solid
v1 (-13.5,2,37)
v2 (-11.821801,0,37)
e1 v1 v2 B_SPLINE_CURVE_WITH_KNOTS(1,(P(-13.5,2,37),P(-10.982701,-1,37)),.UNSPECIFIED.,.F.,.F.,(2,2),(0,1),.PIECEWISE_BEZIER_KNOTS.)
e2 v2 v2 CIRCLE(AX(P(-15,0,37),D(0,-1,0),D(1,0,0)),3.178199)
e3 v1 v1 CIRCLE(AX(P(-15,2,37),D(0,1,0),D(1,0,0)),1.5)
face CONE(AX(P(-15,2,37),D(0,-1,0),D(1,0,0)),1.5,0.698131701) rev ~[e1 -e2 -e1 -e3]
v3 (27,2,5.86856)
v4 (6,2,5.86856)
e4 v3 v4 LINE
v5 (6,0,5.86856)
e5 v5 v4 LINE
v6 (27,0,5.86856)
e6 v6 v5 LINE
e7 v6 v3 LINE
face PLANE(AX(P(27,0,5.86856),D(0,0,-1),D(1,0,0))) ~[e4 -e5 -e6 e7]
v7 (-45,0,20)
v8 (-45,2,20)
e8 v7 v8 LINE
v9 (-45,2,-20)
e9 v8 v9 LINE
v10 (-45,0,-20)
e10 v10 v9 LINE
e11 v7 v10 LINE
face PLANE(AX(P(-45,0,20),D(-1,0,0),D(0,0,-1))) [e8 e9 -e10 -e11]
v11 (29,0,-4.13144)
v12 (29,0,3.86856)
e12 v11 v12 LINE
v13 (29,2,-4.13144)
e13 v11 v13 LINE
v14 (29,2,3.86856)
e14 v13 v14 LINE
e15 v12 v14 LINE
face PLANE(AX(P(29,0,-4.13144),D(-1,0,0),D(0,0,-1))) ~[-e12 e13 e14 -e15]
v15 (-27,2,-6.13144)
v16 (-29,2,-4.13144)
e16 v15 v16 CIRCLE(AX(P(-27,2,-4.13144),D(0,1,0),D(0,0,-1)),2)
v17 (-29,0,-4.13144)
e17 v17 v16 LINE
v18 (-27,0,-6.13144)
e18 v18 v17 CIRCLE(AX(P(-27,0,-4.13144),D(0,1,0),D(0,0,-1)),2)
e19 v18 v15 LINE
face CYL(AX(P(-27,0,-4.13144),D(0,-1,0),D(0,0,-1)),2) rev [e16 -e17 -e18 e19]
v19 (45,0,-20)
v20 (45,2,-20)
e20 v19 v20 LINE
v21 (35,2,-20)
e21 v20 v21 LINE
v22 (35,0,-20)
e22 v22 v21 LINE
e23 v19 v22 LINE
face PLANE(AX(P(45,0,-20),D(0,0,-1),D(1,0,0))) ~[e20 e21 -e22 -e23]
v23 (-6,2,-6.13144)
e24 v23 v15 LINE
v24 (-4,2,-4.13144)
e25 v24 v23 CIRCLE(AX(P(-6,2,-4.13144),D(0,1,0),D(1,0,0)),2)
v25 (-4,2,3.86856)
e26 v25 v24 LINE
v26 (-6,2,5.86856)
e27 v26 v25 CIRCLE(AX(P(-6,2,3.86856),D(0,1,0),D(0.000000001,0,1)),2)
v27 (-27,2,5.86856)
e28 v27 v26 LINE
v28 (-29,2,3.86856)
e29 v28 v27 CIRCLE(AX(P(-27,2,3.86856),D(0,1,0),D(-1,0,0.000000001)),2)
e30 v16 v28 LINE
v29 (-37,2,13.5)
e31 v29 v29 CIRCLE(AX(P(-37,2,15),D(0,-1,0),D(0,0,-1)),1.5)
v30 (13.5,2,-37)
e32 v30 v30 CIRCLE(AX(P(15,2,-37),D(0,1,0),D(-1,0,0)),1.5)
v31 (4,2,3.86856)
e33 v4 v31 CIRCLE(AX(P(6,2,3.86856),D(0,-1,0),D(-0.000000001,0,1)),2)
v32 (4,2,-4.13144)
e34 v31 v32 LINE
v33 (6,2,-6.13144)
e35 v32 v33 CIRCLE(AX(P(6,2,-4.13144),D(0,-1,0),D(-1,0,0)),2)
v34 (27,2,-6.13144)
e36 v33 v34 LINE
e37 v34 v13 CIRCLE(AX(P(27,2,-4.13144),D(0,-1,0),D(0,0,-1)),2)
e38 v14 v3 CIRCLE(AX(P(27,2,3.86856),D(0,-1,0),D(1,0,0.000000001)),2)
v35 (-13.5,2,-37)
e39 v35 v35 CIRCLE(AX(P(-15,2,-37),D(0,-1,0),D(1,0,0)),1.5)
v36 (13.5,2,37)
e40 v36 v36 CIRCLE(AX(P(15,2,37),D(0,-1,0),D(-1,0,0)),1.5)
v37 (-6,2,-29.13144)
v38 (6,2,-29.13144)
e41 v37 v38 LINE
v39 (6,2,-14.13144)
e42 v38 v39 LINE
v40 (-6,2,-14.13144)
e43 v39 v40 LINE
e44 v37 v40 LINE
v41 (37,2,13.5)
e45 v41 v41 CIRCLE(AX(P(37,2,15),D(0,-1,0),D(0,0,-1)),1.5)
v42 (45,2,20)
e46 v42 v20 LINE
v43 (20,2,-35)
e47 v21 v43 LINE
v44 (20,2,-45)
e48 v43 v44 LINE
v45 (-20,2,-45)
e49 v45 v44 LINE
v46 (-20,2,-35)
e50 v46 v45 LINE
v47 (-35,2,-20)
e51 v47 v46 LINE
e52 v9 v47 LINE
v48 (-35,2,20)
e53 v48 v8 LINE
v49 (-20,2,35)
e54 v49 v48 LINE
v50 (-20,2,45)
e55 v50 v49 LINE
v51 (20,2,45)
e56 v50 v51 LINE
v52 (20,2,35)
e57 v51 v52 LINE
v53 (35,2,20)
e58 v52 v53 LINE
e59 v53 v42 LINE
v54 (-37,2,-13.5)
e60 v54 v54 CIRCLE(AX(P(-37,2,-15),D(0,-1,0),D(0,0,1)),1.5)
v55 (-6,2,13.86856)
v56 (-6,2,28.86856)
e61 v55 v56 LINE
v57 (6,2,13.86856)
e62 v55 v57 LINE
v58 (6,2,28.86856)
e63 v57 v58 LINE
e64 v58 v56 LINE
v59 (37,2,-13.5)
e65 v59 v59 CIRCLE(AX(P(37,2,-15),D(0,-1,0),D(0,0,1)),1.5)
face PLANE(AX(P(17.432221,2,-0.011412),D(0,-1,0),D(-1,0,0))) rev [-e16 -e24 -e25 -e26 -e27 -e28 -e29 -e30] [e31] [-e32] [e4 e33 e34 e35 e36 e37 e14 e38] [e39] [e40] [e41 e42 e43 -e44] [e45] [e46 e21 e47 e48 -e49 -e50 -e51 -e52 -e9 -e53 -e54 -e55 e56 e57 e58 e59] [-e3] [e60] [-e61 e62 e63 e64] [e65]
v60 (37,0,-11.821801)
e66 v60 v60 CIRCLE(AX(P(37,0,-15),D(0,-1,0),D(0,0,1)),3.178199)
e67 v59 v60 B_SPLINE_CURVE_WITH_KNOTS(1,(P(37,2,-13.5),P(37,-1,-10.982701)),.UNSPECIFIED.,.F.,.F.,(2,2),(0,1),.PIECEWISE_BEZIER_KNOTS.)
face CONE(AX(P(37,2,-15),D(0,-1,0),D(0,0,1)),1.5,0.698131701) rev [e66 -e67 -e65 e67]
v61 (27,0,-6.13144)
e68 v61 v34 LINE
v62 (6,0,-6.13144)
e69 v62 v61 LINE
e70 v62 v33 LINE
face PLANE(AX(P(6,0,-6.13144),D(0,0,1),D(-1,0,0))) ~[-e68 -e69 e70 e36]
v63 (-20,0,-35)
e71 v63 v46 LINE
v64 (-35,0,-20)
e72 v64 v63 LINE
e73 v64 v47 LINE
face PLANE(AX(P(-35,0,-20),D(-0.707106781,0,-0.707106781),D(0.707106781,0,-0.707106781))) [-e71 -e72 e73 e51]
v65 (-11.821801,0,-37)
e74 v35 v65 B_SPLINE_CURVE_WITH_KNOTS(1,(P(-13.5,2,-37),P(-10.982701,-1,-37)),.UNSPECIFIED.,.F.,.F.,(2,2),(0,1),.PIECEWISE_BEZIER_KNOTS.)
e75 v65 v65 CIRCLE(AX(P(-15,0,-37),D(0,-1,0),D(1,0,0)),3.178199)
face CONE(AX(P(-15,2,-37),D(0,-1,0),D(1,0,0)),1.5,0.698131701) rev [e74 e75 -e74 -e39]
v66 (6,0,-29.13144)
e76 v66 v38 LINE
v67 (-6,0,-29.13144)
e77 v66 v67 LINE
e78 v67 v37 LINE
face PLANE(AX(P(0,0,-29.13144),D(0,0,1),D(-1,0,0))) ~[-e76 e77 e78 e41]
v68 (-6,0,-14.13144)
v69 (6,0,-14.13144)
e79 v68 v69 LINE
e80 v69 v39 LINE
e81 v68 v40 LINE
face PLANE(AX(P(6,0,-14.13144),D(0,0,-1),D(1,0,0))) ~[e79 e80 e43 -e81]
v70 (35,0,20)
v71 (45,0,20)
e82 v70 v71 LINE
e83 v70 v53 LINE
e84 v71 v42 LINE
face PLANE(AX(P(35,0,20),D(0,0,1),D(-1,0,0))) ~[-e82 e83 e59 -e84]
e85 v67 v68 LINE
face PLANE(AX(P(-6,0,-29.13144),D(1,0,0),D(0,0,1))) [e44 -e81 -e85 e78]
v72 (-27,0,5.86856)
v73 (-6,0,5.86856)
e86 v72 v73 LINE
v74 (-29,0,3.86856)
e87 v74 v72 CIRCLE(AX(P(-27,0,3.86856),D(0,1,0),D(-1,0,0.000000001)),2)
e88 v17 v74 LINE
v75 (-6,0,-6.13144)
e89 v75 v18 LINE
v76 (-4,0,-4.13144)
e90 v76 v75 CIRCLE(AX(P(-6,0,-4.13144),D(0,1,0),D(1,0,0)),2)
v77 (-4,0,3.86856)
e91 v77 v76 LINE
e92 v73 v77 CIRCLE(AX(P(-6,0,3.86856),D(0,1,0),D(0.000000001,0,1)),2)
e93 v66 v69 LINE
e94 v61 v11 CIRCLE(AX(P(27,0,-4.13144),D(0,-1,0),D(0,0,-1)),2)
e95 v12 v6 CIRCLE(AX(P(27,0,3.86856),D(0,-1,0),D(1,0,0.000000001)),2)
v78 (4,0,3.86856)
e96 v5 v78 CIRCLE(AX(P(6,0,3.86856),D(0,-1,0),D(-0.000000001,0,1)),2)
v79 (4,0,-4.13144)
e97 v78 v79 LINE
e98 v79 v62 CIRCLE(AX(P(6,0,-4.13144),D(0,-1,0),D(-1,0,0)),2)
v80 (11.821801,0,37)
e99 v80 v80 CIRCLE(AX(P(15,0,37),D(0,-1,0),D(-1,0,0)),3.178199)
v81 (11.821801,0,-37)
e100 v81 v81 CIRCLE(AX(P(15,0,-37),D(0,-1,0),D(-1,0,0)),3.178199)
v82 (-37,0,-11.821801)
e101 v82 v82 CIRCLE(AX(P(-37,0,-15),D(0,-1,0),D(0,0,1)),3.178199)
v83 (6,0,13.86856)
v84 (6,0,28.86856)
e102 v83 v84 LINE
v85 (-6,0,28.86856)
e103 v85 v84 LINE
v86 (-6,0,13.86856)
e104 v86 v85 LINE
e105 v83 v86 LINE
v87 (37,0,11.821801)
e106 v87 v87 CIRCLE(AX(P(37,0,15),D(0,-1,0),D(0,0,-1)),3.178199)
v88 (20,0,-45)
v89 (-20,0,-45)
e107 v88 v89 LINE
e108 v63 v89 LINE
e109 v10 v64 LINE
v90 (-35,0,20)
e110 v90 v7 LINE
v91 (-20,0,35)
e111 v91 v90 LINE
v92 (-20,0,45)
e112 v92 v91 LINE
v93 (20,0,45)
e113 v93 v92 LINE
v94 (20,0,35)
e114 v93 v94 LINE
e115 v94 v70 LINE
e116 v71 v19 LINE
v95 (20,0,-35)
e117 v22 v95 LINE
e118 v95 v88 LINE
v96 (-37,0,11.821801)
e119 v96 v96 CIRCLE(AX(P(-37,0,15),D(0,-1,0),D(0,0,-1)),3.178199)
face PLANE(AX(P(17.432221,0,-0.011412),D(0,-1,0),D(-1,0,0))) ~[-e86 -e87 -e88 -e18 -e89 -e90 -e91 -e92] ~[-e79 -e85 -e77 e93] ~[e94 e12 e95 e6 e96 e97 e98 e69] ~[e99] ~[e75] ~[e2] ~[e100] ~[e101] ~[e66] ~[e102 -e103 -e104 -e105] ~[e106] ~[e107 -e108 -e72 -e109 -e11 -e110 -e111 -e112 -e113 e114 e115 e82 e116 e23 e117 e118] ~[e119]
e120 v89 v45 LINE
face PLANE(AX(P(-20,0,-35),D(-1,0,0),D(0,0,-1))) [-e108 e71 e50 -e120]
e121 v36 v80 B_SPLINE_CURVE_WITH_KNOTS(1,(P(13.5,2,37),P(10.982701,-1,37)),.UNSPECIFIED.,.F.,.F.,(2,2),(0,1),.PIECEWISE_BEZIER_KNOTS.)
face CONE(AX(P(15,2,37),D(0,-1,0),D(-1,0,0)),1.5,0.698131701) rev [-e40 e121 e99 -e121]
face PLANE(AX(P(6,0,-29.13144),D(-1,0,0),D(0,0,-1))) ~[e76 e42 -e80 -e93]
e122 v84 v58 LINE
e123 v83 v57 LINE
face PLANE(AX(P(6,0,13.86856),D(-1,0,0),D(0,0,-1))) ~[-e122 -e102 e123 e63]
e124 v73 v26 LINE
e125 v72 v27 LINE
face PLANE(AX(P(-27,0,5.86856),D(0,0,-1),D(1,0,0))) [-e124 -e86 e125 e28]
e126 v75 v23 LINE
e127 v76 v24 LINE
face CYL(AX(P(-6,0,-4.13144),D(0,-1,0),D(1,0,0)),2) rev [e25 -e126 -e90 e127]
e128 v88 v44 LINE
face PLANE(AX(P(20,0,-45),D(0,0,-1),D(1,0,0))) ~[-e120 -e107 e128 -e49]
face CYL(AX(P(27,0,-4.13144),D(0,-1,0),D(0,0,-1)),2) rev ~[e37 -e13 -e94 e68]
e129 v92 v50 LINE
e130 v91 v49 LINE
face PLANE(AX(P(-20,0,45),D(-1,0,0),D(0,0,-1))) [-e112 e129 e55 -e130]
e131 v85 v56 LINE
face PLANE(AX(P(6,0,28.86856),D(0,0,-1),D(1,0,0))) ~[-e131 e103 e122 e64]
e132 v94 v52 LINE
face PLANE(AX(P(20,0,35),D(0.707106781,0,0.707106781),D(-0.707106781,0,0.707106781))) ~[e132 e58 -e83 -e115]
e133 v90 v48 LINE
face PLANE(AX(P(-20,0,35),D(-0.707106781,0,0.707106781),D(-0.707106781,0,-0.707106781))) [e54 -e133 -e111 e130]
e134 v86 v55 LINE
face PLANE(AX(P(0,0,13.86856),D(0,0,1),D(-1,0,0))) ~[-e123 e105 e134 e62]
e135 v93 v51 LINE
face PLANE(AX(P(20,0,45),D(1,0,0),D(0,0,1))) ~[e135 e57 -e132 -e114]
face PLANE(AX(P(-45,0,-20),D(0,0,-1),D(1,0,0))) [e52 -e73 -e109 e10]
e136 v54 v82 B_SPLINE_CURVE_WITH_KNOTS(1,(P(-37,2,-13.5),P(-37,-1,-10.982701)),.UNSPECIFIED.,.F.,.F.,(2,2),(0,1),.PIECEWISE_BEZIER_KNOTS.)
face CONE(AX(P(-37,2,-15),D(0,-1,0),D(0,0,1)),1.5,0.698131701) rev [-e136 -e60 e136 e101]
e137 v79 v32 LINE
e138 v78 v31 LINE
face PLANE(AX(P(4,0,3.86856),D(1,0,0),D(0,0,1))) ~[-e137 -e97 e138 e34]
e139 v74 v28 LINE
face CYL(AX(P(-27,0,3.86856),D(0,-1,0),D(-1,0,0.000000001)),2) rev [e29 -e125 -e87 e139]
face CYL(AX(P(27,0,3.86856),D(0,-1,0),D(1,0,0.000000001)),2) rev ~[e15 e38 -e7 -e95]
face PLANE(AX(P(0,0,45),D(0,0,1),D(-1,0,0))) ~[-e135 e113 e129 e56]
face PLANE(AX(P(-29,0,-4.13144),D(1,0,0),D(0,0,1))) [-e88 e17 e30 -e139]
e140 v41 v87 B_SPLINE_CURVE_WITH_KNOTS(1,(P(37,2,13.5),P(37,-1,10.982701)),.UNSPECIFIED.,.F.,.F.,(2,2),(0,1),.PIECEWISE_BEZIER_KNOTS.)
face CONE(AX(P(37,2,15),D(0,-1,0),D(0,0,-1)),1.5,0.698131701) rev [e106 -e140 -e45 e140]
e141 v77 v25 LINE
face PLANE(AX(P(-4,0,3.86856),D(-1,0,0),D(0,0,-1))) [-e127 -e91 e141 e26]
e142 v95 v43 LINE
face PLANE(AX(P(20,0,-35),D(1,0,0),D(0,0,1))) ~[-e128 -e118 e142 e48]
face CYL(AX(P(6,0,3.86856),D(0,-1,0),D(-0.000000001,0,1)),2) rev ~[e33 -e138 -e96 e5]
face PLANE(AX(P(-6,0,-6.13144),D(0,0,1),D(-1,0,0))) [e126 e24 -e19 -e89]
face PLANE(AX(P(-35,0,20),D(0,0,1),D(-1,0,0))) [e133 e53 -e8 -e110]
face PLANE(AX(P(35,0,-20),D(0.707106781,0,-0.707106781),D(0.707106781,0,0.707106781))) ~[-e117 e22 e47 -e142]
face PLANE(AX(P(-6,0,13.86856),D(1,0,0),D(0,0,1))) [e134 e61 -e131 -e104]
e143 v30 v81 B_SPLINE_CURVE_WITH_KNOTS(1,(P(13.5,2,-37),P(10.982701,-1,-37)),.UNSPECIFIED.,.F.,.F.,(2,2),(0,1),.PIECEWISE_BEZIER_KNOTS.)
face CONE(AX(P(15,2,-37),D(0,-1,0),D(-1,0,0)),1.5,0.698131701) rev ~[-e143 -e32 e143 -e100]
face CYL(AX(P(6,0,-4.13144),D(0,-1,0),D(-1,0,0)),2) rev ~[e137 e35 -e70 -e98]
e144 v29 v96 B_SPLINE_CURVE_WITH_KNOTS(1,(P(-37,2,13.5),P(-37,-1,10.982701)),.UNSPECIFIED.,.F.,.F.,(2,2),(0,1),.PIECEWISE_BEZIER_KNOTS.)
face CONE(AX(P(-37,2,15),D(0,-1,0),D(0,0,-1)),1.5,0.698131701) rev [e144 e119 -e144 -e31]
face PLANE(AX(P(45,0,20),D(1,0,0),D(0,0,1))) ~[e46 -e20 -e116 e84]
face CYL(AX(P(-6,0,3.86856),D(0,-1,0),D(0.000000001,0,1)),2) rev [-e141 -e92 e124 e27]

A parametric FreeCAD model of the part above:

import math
import FreeCAD as App
import Part
import Sketcher

V = App.Vector
Q = App.Units.Quantity


def add_polygon(sketch, points):
    """Adds a closed chain of lines whose ends are joined by coincident constraints."""
    first, n = sketch.GeometryCount, len(points)
    for a, b in zip(points, points[1:] + points[:1]):
        sketch.addGeometry(Part.LineSegment(App.Vector(*a, 0), App.Vector(*b, 0)), False)
    for i in range(n):
        sketch.addConstraint(Sketcher.Constraint("Coincident", first + i, 2, first + (i + 1) % n, 1))

doc = App.newDocument("Part")
body = doc.addObject("PartDesign::Body", "Body")

sketch1 = body.newObject("Sketcher::SketchObject", "Sketch")
sketch1.AttachmentSupport = (doc.getObject("XZ_Plane"), [""])
sketch1.MapMode = "FlatFace"
add_polygon(sketch1, [(-20, -45), (-20, -35), (-35, -20), (-45, -20), (-45, 20), (-35, 20), (-20, 35), (-20, 45), (0, 45), (0, 28.9), (-6, 28.9), (-6, 13.9), (0, 13.9), (0, -14.1), (-6, -14.1), (-6, -29.1), (0, -29.1), (0, -45)])
sketch1.addGeometry(Part.ArcOfCircle(Part.Circle(V(-27, 3.9, 0), V(0, 0, 1), 2), math.radians(90), math.radians(180)), False)
sketch1.addGeometry(Part.LineSegment(V(-29, 3.9, 0), V(-29, -4.1, 0)), False)
sketch1.addGeometry(Part.ArcOfCircle(Part.Circle(V(-27, -4.1, 0), V(0, 0, 1), 2), math.radians(180), math.radians(270)), False)
sketch1.addGeometry(Part.LineSegment(V(-27, -6.1, 0), V(-6, -6.1, 0)), False)
sketch1.addGeometry(Part.ArcOfCircle(Part.Circle(V(-6, -4.1, 0), V(0, 0, 1), 2), math.radians(-90), math.radians(0)), False)
sketch1.addGeometry(Part.LineSegment(V(-4, -4.1, 0), V(-4, 3.9, 0)), False)
sketch1.addGeometry(Part.ArcOfCircle(Part.Circle(V(-6, 3.9, 0), V(0, 0, 1), 2), math.radians(0), math.radians(90)), False)
sketch1.addGeometry(Part.LineSegment(V(-6, 5.9, 0), V(-27, 5.9, 0)), False)
sketch1.addConstraint(Sketcher.Constraint("Tangent", 18, 2, 19, 1))
sketch1.addConstraint(Sketcher.Constraint("Tangent", 19, 2, 20, 1))
sketch1.addConstraint(Sketcher.Constraint("Tangent", 20, 2, 21, 1))
sketch1.addConstraint(Sketcher.Constraint("Tangent", 21, 2, 22, 1))
sketch1.addConstraint(Sketcher.Constraint("Tangent", 22, 2, 23, 1))
sketch1.addConstraint(Sketcher.Constraint("Tangent", 23, 2, 24, 1))
sketch1.addConstraint(Sketcher.Constraint("Tangent", 24, 2, 25, 1))
sketch1.addConstraint(Sketcher.Constraint("Tangent", 25, 2, 18, 1))
sketch1.addConstraint(Sketcher.Constraint("Vertical", 0))
sketch1.addConstraint(Sketcher.Constraint("Horizontal", 2))
sketch1.addConstraint(Sketcher.Constraint("Vertical", 3))
sketch1.addConstraint(Sketcher.Constraint("Horizontal", 4))
sketch1.addConstraint(Sketcher.Constraint("Vertical", 6))
sketch1.addConstraint(Sketcher.Constraint("Horizontal", 7))
sketch1.addConstraint(Sketcher.Constraint("Vertical", 8))
sketch1.addConstraint(Sketcher.Constraint("Horizontal", 9))
sketch1.addConstraint(Sketcher.Constraint("Vertical", 10))
sketch1.addConstraint(Sketcher.Constraint("Horizontal", 11))
sketch1.addConstraint(Sketcher.Constraint("Vertical", 12))
sketch1.addConstraint(Sketcher.Constraint("Horizontal", 13))
sketch1.addConstraint(Sketcher.Constraint("Vertical", 14))
sketch1.addConstraint(Sketcher.Constraint("Horizontal", 15))
sketch1.addConstraint(Sketcher.Constraint("Vertical", 16))
sketch1.addConstraint(Sketcher.Constraint("Horizontal", 17))
sketch1.addConstraint(Sketcher.Constraint("Vertical", 19))
sketch1.addConstraint(Sketcher.Constraint("Horizontal", 21))
sketch1.addConstraint(Sketcher.Constraint("Vertical", 23))
sketch1.addConstraint(Sketcher.Constraint("Horizontal", 25))
sketch1.addConstraint(Sketcher.Constraint("Equal", 18, 20))
sketch1.addConstraint(Sketcher.Constraint("Equal", 20, 22))
sketch1.addConstraint(Sketcher.Constraint("Equal", 22, 24))
sketch1.addConstraint(Sketcher.Constraint("Symmetric", 7, 2, 16, 2, -1, 1))
sketch1.addConstraint(Sketcher.Constraint("Symmetric", 1, 2, 4, 2, -1))
sketch1.addConstraint(Sketcher.Constraint("Symmetric", 0, 2, 5, 2, -1))
sketch1.addConstraint(Sketcher.Constraint("PointOnObject", 7, 2, -2))
sketch1.addConstraint(Sketcher.Constraint("PointOnObject", 11, 2, -2))
sketch1.addConstraint(Sketcher.Constraint("Perpendicular", 1, 5))
sketch1.addConstraint(Sketcher.Constraint("Vertical", 24, 3, 9, 2))
sketch1.addConstraint(Sketcher.Constraint("Vertical", 10, 2, 13, 2))
sketch1.addConstraint(Sketcher.Constraint("Equal", 4, 0))
sketch1.addConstraint(Sketcher.Constraint("Equal", 10, 14))
sketch1.addConstraint(Sketcher.Constraint("Radius", 18, Q("2 mm")))
sketch1.addConstraint(Sketcher.Constraint("DistanceX", 2, 2, 2, 1, Q("10 mm")))
sketch1.addConstraint(Sketcher.Constraint("DistanceX", 7, 1, 7, 2, Q("20 mm")))
sketch1.addConstraint(Sketcher.Constraint("DistanceX", 9, 2, 9, 1, Q("6 mm")))
sketch1.addConstraint(Sketcher.Constraint("DistanceX", 21, 1, 21, 2, Q("21 mm")))
sketch1.addConstraint(Sketcher.Constraint("DistanceY", 3, 1, 3, 2, Q("40 mm")))
sketch1.addConstraint(Sketcher.Constraint("DistanceY", 10, 2, 10, 1, Q("15 mm")))
sketch1.addConstraint(Sketcher.Constraint("DistanceY", 12, 2, 12, 1, Q("28 mm")))
sketch1.addConstraint(Sketcher.Constraint("DistanceY", 19, 2, 19, 1, Q("8 mm")))
sketch1.addConstraint(Sketcher.Constraint("DistanceY", 0, 2, -1, 1, Q("35 mm")))
sketch1.addConstraint(Sketcher.Constraint("DistanceY", 24, 3, 8, 2, Q("25 mm")))
sketch1.addConstraint(Sketcher.Constraint("DistanceY", 8, 2, 8, 1, Q("16.13144 mm")))
pad1 = body.newObject("PartDesign::Pad", "Pad")
pad1.Profile = sketch1
pad1.Length = 2
pad1.Reversed = True
doc.recompute()

mirrored = body.newObject("PartDesign::Mirrored", "Mirrored")
mirrored.Originals = [pad1]
mirrored.MirrorPlane = (doc.getObject("YZ_Plane"), [""])
body.Tip = mirrored

sketch2 = body.newObject("Sketcher::SketchObject", "Sketch001")
sketch2.AttachmentSupport = (doc.getObject("XZ_Plane"), [""])
sketch2.MapMode = "FlatFace"
sketch2.AttachmentOffset = App.Placement(V(0, 0, -2), App.Rotation())
sketch2.addGeometry(Part.Circle(V(-15, -37, 0), V(0, 0, 1), 1.5), False)
sketch2.addConstraint(Sketcher.Constraint("Diameter", 0, Q("3 mm")))
sketch2.addConstraint(Sketcher.Constraint("DistanceX", 0, 3, -1, 1, Q("15 mm")))
sketch2.addConstraint(Sketcher.Constraint("DistanceY", 0, 3, -1, 1, Q("37 mm")))
pocket1 = body.newObject("PartDesign::Pocket", "Pocket")
pocket1.Profile = sketch2
pocket1.Type = "ThroughAll"
pocket1.Reversed = True
pocket1.TaperAngle = 40
doc.recompute()

mirrored2 = body.newObject("PartDesign::Mirrored", "Mirrored001")
mirrored2.Originals = [pocket1]
mirrored2.MirrorPlane = (doc.getObject("YZ_Plane"), [""])
body.Tip = mirrored2
doc.recompute()

mirrored3 = body.newObject("PartDesign::Mirrored", "Mirrored002")
mirrored3.Originals = [pocket1]
mirrored3.MirrorPlane = (doc.getObject("XY_Plane"), [""])
body.Tip = mirrored3

sketch3 = body.newObject("Sketcher::SketchObject", "Sketch002")
sketch3.AttachmentSupport = (doc.getObject("XZ_Plane"), [""])
sketch3.MapMode = "FlatFace"
sketch3.AttachmentOffset = App.Placement(V(0, 0, -2), App.Rotation())
sketch3.addGeometry(Part.Circle(V(15, 37, 0), V(0, 0, 1), 1.5), False)
sketch3.addConstraint(Sketcher.Constraint("Diameter", 0, Q("3 mm")))
sketch3.addConstraint(Sketcher.Constraint("DistanceX", -1, 1, 0, 3, Q("15 mm")))
sketch3.addConstraint(Sketcher.Constraint("DistanceY", -1, 1, 0, 3, Q("37 mm")))
pocket2 = body.newObject("PartDesign::Pocket", "Pocket001")
pocket2.Profile = sketch3
pocket2.Type = "ThroughAll"
pocket2.Reversed = True
pocket2.TaperAngle = 40
doc.recompute()

polarpattern = body.newObject("PartDesign::PolarPattern", "PolarPattern")
polarpattern.Originals = [pocket1]
polarpattern.Axis = (doc.getObject("Y_Axis"), [""])
polarpattern.Angle = 90
polarpattern.Occurrences = 2
polarpattern.Reversed = True
body.Tip = polarpattern

sketch4 = body.newObject("Sketcher::SketchObject", "Sketch003")
sketch4.AttachmentSupport = (doc.getObject("XZ_Plane"), [""])
sketch4.MapMode = "FlatFace"
sketch4.AttachmentOffset = App.Placement(V(0, 0, -2), App.Rotation())
sketch4.addGeometry(Part.Circle(V(-37, -15, 0), V(0, 0, 1), 1.5), False)
sketch4.addConstraint(Sketcher.Constraint("Diameter", 0, Q("3 mm")))
sketch4.addConstraint(Sketcher.Constraint("DistanceX", 0, 3, -1, 1, Q("37 mm")))
sketch4.addConstraint(Sketcher.Constraint("DistanceY", 0, 3, -1, 1, Q("15 mm")))
pocket3 = body.newObject("PartDesign::Pocket", "Pocket002")
pocket3.Profile = sketch4
pocket3.Type = "ThroughAll"
pocket3.Reversed = True
pocket3.TaperAngle = 40

sketch5 = body.newObject("Sketcher::SketchObject", "Sketch004")
sketch5.AttachmentSupport = (doc.getObject("XZ_Plane"), [""])
sketch5.MapMode = "FlatFace"
sketch5.AttachmentOffset = App.Placement(V(0, 0, -2), App.Rotation())
sketch5.addGeometry(Part.Circle(V(-37, 15, 0), V(0, 0, 1), 1.5), False)
sketch5.addConstraint(Sketcher.Constraint("Diameter", 0, Q("3 mm")))
sketch5.addConstraint(Sketcher.Constraint("DistanceX", 0, 3, -1, 1, Q("37 mm")))
sketch5.addConstraint(Sketcher.Constraint("DistanceY", -1, 1, 0, 3, Q("15 mm")))
pocket4 = body.newObject("PartDesign::Pocket", "Pocket003")
pocket4.Profile = sketch5
pocket4.Type = "ThroughAll"
pocket4.Reversed = True
pocket4.TaperAngle = 40

sketch6 = body.newObject("Sketcher::SketchObject", "Sketch005")
sketch6.AttachmentSupport = (doc.getObject("XZ_Plane"), [""])
sketch6.MapMode = "FlatFace"
sketch6.AttachmentOffset = App.Placement(V(0, 0, -2), App.Rotation())
sketch6.addGeometry(Part.Circle(V(37, 15, 0), V(0, 0, 1), 1.5), False)
sketch6.addConstraint(Sketcher.Constraint("Diameter", 0, Q("3 mm")))
sketch6.addConstraint(Sketcher.Constraint("DistanceX", -1, 1, 0, 3, Q("37 mm")))
sketch6.addConstraint(Sketcher.Constraint("DistanceY", -1, 1, 0, 3, Q("15 mm")))
pocket5 = body.newObject("PartDesign::Pocket", "Pocket004")
pocket5.Profile = sketch6
pocket5.Type = "ThroughAll"
pocket5.Reversed = True
pocket5.TaperAngle = 40

doc.recompute()
